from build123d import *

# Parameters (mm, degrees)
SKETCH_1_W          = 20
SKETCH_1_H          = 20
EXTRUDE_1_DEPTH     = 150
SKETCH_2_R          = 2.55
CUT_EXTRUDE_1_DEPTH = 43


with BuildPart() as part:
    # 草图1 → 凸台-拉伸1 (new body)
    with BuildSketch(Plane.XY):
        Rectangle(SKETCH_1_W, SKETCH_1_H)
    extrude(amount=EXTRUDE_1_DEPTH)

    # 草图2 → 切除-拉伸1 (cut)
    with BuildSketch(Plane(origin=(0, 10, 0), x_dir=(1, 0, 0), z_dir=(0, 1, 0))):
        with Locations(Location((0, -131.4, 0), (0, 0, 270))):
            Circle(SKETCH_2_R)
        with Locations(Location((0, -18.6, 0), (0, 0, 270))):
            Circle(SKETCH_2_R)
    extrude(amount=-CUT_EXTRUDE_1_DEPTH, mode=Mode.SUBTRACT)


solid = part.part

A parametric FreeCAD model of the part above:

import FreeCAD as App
import Part
import Sketcher

V = App.Vector
Q = App.Units.Quantity


def add_polygon(sketch, points):
    """Adds a closed chain of lines whose ends are joined by coincident constraints."""
    first, n = sketch.GeometryCount, len(points)
    for a, b in zip(points, points[1:] + points[:1]):
        sketch.addGeometry(Part.LineSegment(App.Vector(*a, 0), App.Vector(*b, 0)), False)
    for i in range(n):
        sketch.addConstraint(Sketcher.Constraint("Coincident", first + i, 2, first + (i + 1) % n, 1))

doc = App.newDocument("Part")
body = doc.addObject("PartDesign::Body", "Body")

# Sketch on XY plane
sketch1 = body.newObject("Sketcher::SketchObject", "Sketch")
sketch1.AttachmentSupport = (doc.getObject("XY_Plane"), [""])
sketch1.MapMode = "FlatFace"
add_polygon(sketch1, [(-10, 10), (-10, -10), (10, -10), (10, 10)])  # lines 0-3
sketch1.addConstraint([
    Sketcher.Constraint("Vertical", 0),
    Sketcher.Constraint("Horizontal", 1),
    Sketcher.Constraint("Vertical", 2),
    Sketcher.Constraint("Horizontal", 3),
    Sketcher.Constraint("Symmetric", 0, 2, 2, 2, -1, 1),
    Sketcher.Constraint("Equal", 3, 0),
    Sketcher.Constraint("DistanceX", 1, 1, 1, 2, Q("20 mm")),
])
pad1 = body.newObject("PartDesign::Pad", "Pad")
pad1.Profile = sketch1
pad1.Length = 150

# Sketch on XZ plane
sketch2 = body.newObject("Sketcher::SketchObject", "Sketch001")
sketch2.AttachmentSupport = (doc.getObject("XZ_Plane"), [""])
sketch2.MapMode = "FlatFace"
sketch2.AttachmentOffset = App.Placement(V(0, 0, -10), App.Rotation())
sketch2.addGeometry([
    Part.Circle(V(0, 131.4, 0), V(0, 0, 1), 2.5),
    Part.Circle(V(0, 18.6, 0), V(0, 0, 1), 2.5),
], False)
sketch2.addConstraint([
    Sketcher.Constraint("Equal", 0, 1),
    Sketcher.Constraint("PointOnObject", 0, 3, -2),
    Sketcher.Constraint("PointOnObject", 1, 3, -2),
    Sketcher.Constraint("Diameter", 0, Q("5.1 mm")),
    Sketcher.Constraint("DistanceY", -1, 1, 0, 3, Q("131.4 mm")),
    Sketcher.Constraint("DistanceY", -1, 1, 1, 3, Q("18.6 mm")),
])
pocket1 = body.newObject("PartDesign::Pocket", "Pocket")
pocket1.Profile = sketch2
pocket1.Length = 43
pocket1.Reversed = True

doc.recompute()
